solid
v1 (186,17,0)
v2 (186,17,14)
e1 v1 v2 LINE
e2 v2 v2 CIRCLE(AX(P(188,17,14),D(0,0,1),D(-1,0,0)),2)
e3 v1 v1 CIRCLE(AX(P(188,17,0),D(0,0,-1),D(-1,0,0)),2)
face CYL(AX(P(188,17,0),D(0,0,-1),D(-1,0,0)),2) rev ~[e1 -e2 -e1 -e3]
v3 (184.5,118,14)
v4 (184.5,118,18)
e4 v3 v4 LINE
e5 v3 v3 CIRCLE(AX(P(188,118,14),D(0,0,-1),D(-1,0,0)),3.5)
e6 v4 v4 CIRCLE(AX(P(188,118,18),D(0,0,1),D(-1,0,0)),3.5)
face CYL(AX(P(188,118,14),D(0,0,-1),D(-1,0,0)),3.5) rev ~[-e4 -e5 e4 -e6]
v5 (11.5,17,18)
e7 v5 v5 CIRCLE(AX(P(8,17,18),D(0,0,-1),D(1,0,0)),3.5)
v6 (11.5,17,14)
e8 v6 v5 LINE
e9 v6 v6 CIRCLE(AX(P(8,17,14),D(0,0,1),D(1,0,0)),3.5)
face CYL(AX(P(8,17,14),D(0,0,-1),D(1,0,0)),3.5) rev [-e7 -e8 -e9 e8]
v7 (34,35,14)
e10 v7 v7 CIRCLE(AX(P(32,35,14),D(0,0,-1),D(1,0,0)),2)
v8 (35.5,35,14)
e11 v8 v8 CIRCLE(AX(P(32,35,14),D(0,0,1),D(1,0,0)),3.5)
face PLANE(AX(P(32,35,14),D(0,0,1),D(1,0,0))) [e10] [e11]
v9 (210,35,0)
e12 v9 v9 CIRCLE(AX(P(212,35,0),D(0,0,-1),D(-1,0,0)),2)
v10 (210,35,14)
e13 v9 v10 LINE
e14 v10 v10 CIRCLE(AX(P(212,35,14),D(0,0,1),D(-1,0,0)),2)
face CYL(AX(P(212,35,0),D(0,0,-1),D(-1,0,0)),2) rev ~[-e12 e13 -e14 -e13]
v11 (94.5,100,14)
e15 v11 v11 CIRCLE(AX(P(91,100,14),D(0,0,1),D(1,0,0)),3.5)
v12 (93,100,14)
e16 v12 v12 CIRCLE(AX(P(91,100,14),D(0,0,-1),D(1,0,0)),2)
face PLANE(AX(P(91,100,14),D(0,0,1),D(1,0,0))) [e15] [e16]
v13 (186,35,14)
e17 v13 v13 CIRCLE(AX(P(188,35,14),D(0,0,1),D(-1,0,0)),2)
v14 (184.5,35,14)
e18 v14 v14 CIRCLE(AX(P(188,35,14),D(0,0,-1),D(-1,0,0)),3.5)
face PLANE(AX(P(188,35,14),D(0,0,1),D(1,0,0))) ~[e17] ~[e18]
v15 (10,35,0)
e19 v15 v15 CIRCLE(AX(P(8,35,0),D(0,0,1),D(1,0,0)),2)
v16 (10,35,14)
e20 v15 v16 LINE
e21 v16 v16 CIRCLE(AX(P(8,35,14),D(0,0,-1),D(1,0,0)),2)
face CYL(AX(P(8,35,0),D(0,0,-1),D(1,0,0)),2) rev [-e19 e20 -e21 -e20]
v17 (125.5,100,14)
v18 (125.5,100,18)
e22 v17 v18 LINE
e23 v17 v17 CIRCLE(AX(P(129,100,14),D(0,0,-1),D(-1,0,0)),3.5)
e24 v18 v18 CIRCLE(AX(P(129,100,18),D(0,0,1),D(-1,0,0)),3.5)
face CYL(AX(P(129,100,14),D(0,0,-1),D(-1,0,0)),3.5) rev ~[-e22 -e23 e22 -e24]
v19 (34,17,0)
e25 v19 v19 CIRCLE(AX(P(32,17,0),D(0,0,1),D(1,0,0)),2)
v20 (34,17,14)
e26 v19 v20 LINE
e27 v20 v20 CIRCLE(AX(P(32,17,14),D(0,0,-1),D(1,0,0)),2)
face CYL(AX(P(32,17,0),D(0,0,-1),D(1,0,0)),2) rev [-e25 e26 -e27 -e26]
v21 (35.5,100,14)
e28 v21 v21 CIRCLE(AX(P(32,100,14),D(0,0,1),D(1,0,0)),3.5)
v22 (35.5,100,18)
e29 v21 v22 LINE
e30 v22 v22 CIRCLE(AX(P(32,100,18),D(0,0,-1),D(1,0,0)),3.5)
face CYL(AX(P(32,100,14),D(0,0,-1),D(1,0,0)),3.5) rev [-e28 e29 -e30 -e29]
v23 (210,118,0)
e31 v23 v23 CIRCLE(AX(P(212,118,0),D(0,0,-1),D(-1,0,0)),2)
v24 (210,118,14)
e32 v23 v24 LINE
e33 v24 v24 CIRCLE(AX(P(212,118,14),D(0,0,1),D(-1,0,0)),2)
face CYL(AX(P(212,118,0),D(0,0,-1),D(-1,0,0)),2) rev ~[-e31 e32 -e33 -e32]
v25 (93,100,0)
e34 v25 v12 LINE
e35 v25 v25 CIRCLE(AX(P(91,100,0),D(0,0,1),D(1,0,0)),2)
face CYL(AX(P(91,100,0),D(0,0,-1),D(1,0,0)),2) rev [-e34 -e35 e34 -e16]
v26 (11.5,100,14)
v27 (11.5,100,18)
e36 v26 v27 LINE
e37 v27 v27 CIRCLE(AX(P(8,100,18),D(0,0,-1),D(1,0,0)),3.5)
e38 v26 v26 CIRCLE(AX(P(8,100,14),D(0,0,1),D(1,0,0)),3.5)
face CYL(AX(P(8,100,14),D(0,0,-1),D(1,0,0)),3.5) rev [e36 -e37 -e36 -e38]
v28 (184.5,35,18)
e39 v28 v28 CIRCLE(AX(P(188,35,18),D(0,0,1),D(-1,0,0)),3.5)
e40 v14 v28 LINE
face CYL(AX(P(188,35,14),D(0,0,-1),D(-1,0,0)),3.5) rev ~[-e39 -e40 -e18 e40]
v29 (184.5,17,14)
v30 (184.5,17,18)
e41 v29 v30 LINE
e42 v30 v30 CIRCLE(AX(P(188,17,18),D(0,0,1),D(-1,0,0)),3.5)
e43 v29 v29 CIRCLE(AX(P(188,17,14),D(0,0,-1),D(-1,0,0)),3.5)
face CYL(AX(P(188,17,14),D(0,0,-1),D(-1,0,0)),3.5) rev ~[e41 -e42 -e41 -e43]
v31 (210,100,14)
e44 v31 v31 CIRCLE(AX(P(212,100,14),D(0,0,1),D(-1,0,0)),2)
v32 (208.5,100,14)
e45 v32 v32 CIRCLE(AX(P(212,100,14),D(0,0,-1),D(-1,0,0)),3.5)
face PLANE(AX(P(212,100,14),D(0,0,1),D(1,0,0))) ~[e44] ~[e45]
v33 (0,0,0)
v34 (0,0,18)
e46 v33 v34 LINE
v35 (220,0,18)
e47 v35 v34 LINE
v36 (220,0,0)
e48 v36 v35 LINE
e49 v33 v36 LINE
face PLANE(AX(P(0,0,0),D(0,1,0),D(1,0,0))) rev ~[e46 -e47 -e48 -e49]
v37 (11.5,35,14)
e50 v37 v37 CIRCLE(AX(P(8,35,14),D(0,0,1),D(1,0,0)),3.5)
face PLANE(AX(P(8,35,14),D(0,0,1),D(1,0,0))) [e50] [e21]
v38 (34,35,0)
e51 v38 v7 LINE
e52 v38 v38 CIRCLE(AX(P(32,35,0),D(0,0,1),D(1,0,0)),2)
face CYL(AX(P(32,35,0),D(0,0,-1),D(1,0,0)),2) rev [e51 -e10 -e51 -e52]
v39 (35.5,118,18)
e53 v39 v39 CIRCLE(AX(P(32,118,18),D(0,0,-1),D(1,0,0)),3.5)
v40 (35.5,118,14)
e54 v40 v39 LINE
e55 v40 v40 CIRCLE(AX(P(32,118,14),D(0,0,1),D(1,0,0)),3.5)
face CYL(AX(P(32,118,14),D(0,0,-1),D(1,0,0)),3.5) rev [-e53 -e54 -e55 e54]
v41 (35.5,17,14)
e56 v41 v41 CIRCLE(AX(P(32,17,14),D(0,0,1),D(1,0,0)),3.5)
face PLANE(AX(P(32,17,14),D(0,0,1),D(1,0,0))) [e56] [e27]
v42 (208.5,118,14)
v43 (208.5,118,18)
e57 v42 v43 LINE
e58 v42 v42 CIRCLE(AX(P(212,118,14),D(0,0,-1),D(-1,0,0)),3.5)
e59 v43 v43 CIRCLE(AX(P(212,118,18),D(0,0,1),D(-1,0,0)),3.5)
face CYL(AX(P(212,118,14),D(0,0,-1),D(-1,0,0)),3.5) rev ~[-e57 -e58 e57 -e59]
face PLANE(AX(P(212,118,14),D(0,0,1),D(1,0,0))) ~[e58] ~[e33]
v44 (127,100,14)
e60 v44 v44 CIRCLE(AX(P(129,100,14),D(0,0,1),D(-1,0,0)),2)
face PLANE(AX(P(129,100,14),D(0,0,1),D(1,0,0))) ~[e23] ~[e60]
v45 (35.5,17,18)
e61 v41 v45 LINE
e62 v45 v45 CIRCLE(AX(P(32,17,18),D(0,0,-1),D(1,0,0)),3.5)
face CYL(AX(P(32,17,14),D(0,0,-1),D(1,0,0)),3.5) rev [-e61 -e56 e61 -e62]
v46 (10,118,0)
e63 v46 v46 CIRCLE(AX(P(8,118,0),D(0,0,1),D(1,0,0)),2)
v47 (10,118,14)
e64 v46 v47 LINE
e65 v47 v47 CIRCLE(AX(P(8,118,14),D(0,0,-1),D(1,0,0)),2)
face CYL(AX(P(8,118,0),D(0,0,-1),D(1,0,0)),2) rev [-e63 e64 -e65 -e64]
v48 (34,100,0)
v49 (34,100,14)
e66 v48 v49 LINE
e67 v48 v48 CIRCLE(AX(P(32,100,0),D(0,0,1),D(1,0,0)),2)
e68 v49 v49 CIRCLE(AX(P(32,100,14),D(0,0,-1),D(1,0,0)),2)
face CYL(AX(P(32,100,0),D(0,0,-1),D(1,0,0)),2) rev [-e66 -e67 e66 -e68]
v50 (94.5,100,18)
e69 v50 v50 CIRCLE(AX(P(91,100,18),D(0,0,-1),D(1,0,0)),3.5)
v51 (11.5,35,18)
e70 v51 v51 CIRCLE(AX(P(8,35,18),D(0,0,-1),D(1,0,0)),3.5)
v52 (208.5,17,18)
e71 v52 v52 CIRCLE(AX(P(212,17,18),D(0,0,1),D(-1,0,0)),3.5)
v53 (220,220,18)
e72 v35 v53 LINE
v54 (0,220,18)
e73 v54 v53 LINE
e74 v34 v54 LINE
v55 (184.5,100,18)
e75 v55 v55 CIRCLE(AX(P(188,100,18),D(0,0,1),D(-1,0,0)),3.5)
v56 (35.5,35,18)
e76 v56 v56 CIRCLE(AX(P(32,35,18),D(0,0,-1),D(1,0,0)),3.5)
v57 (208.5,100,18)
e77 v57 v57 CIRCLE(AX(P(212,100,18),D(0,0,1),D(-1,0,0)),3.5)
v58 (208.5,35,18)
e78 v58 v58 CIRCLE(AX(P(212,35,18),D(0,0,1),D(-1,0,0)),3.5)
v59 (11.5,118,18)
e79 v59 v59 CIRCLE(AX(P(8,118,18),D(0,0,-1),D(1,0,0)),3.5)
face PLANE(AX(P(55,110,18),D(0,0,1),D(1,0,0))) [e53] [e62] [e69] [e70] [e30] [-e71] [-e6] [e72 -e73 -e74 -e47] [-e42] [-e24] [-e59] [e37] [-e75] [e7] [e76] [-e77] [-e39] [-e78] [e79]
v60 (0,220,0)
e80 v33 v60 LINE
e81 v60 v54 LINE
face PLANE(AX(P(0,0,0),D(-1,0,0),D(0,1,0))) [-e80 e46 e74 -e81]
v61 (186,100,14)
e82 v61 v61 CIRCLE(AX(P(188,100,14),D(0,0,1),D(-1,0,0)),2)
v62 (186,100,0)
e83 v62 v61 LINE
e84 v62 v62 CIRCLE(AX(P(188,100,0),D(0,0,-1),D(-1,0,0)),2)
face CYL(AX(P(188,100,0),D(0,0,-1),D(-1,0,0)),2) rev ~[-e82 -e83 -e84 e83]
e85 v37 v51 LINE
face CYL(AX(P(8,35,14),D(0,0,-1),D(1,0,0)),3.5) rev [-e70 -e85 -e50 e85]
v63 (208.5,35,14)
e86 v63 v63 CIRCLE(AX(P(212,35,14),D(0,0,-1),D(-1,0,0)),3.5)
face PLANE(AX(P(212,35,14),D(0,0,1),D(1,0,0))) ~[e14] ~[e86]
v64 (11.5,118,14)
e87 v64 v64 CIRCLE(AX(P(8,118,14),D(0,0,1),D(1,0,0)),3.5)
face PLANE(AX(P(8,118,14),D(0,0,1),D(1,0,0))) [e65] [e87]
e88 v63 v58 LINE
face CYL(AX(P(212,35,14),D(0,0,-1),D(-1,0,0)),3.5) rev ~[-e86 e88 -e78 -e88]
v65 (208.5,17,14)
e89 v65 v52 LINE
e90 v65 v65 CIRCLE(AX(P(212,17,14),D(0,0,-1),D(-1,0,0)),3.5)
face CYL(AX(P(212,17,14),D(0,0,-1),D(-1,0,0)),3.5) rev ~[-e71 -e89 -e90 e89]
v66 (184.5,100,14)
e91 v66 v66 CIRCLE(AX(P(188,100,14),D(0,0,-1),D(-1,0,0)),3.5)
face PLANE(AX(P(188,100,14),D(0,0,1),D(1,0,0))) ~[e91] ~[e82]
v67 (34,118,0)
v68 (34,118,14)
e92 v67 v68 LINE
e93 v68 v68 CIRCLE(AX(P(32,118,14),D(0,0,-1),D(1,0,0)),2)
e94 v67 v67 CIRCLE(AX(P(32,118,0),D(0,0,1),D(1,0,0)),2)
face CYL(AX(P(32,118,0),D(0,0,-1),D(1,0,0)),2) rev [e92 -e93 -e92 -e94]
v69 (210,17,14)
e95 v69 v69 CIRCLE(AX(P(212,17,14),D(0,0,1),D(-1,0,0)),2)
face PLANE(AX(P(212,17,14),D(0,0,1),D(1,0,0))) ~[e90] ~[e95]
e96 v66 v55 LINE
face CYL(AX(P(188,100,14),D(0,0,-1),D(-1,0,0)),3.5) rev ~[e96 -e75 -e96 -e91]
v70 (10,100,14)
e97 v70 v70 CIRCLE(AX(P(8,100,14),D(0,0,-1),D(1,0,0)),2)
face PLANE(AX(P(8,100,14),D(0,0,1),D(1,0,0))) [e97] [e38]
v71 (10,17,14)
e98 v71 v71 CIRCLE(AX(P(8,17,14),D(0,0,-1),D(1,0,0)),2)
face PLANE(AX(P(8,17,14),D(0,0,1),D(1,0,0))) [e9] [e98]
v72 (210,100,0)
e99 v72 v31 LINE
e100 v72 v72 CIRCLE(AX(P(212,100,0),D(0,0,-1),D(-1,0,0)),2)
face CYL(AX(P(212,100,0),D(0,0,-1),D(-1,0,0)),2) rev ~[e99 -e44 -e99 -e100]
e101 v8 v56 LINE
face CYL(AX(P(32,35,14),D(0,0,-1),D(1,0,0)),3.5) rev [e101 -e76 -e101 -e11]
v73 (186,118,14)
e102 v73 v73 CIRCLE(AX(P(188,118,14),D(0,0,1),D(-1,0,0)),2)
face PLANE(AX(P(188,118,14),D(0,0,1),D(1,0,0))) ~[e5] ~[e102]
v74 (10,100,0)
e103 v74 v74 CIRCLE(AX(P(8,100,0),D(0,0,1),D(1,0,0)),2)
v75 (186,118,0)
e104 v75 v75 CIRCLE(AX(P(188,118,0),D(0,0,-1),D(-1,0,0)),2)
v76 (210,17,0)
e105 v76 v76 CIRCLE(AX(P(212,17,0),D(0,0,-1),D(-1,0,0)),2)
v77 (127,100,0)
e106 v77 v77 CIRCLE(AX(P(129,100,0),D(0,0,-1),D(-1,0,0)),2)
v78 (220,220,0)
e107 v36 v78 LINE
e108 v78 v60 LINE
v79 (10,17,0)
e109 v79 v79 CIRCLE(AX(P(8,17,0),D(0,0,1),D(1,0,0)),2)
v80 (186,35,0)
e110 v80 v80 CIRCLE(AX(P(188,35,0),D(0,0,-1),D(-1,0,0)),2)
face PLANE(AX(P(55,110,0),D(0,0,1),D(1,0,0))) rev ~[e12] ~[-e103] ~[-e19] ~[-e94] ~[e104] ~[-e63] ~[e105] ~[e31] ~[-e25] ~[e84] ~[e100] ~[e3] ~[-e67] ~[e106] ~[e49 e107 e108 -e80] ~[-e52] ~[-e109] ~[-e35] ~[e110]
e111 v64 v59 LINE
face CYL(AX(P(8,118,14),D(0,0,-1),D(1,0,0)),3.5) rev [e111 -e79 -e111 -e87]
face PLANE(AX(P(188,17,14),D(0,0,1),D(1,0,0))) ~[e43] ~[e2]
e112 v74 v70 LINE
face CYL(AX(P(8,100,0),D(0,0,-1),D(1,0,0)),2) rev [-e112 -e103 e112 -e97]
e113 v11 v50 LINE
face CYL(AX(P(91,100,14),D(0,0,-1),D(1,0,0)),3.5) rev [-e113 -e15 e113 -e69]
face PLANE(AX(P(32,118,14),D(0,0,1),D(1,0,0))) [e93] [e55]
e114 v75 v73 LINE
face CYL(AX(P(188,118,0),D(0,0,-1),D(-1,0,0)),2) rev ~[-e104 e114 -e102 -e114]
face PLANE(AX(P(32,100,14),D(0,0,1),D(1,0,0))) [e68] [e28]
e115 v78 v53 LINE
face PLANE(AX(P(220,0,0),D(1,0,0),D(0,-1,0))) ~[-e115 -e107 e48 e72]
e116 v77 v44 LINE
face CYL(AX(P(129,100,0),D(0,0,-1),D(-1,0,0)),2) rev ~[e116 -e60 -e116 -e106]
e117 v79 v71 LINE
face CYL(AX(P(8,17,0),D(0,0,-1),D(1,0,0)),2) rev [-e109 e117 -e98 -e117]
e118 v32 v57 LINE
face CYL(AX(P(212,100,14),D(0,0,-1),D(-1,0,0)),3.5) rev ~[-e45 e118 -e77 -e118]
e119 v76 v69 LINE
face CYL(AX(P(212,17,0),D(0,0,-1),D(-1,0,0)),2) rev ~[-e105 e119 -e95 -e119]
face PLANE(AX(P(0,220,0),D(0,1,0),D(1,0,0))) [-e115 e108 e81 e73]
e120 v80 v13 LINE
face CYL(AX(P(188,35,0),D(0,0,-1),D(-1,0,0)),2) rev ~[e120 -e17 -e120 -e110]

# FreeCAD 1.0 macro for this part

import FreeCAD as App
import Part
import Sketcher

doc = App.newDocument("Part")
params = doc.addObject("Spreadsheet::Sheet", "Params")
for row, (alias, value) in enumerate([
    ("sketch1_diameter", "7 mm"),
    ("pad1_length", "8 mm"),
    ("sketch2_diameter", "4 mm"),
    ("pad2_length", "25 mm"),
    ("sketch3_diameter", "7 mm"),
    ("pad3_length", "8 mm"),
    ("sketch4_diameter", "4 mm"),
    ("pad4_length", "25 mm"),
    ("sketch5_diameter", "7 mm"),
    ("pad5_length", "8 mm"),
    ("sketch6_diameter", "4 mm"),
    ("pad6_length", "25 mm"),
    ("sketch7_diameter", "7 mm"),
    ("pad7_length", "8 mm"),
    ("sketch8_diameter", "4 mm"),
    ("pad8_length", "25 mm"),
    ("sketch9_diameter", "7 mm"),
    ("pad9_length", "8 mm"),
    ("sketch10_diameter", "4 mm"),
    ("pad10_length", "25 mm"),
    ("sketch11_diameter", "7 mm"),
    ("pad11_length", "8 mm"),
    ("sketch12_diameter", "4 mm"),
    ("pad12_length", "25 mm"),
    ("sketch13_diameter", "7 mm"),
    ("pad13_length", "8 mm"),
    ("sketch14_diameter", "4 mm"),
    ("pad14_length", "25 mm"),
    ("sketch15_diameter", "7 mm"),
    ("pad15_length", "8 mm"),
    ("sketch16_diameter", "4 mm"),
    ("pad16_length", "25 mm"),
    ("sketch17_diameter", "7 mm"),
    ("pad17_length", "8 mm"),
    ("sketch18_diameter", "4 mm"),
    ("pad18_length", "25 mm"),
    ("sketch19_width", "110 mm"),
    ("sketch19_height", "220 mm"),
    ("pad19_length", "18 mm"),
], start=1):
    params.set(f"A{row}", alias)
    params.set(f"B{row}", "=" + value)
    params.setAlias(f"B{row}", alias)

body = doc.addObject("PartDesign::Body", "Body")

# Sketch on XY plane
sketch1 = body.newObject("Sketcher::SketchObject", "Sketch")
sketch1.AttachmentSupport = (doc.getObject("XY_Plane"), [""])
sketch1.MapMode = "FlatFace"
sketch1.AttachmentOffset = App.Placement(App.Vector(0, 0, 14), App.Rotation())
sketch1.addGeometry(Part.Circle(App.Vector(8, 17, 0), App.Vector(0, 0, 1), 3.5), False)
sketch1.addConstraint(Sketcher.Constraint("Diameter", 0, 7.0))
sketch1.addConstraint(Sketcher.Constraint("DistanceX", -1, 1, 0, 3, 8.0))
sketch1.addConstraint(Sketcher.Constraint("DistanceY", -1, 1, 0, 3, 17.0))
sketch1.setExpression("Constraints[0]", "Params.sketch1_diameter")
pad1 = body.newObject("PartDesign::Pad", "Pad")
pad1.Profile = sketch1
pad1.setExpression("Length", "Params.pad1_length")
body2 = doc.addObject("PartDesign::Body", "Body001")

# Sketch on XY plane
sketch2 = body2.newObject("Sketcher::SketchObject", "Sketch001")
sketch2.AttachmentSupport = (doc.getObject("XY_Plane001"), [""])
sketch2.MapMode = "FlatFace"
sketch2.addGeometry(Part.Circle(App.Vector(8, 17, 0), App.Vector(0, 0, 1), 2), False)
sketch2.addConstraint(Sketcher.Constraint("Diameter", 0, 4.0))
sketch2.addConstraint(Sketcher.Constraint("DistanceX", -1, 1, 0, 3, 8.0))
sketch2.addConstraint(Sketcher.Constraint("DistanceY", -1, 1, 0, 3, 17.0))
sketch2.setExpression("Constraints[0]", "Params.sketch2_diameter")
pad2 = body2.newObject("PartDesign::Pad", "Pad001")
pad2.Profile = sketch2
pad2.setExpression("Length", "Params.pad2_length")
doc.recompute()

boolean = body2.newObject("PartDesign::Boolean", "Boolean")
boolean.Type = "Fuse"
boolean.addObjects([body])
body3 = doc.addObject("PartDesign::Body", "Body002")
doc.recompute()

body2.Placement = App.Placement(App.Vector(24, 0, 0), App.Rotation(App.Vector(0, 0, 1), 0))
boolean2 = body3.newObject("PartDesign::Boolean", "Boolean001")
boolean2.Type = "Fuse"
boolean2.addObjects([body2])
body4 = doc.addObject("PartDesign::Body", "Body003")

# Sketch on XY plane
sketch3 = body4.newObject("Sketcher::SketchObject", "Sketch002")
sketch3.AttachmentSupport = (doc.getObject("XY_Plane003"), [""])
sketch3.MapMode = "FlatFace"
sketch3.AttachmentOffset = App.Placement(App.Vector(0, 0, 14), App.Rotation())
sketch3.addGeometry(Part.Circle(App.Vector(8, 17, 0), App.Vector(0, 0, 1), 3.5), False)
sketch3.addConstraint(Sketcher.Constraint("Diameter", 0, 7.0))
sketch3.addConstraint(Sketcher.Constraint("DistanceX", -1, 1, 0, 3, 8.0))
sketch3.addConstraint(Sketcher.Constraint("DistanceY", -1, 1, 0, 3, 17.0))
sketch3.setExpression("Constraints[0]", "Params.sketch3_diameter")
pad3 = body4.newObject("PartDesign::Pad", "Pad002")
pad3.Profile = sketch3
pad3.setExpression("Length", "Params.pad3_length")
body5 = doc.addObject("PartDesign::Body", "Body004")
body5.AllowCompound = True

# Sketch on XY plane
sketch4 = body5.newObject("Sketcher::SketchObject", "Sketch003")
sketch4.AttachmentSupport = (doc.getObject("XY_Plane004"), [""])
sketch4.MapMode = "FlatFace"
sketch4.addGeometry(Part.Circle(App.Vector(8, 17, 0), App.Vector(0, 0, 1), 2), False)
sketch4.addConstraint(Sketcher.Constraint("Diameter", 0, 4.0))
sketch4.addConstraint(Sketcher.Constraint("DistanceX", -1, 1, 0, 3, 8.0))
sketch4.addConstraint(Sketcher.Constraint("DistanceY", -1, 1, 0, 3, 17.0))
sketch4.setExpression("Constraints[0]", "Params.sketch4_diameter")
pad4 = body5.newObject("PartDesign::Pad", "Pad003")
pad4.Profile = sketch4
pad4.setExpression("Length", "Params.pad4_length")
doc.recompute()

boolean3 = body5.newObject("PartDesign::Boolean", "Boolean002")
boolean3.Type = "Fuse"
boolean3.addObjects([body4])
doc.recompute()

boolean4 = body5.newObject("PartDesign::Boolean", "Boolean003")
boolean4.Type = "Fuse"
boolean4.addObjects([body3])
body6 = doc.addObject("PartDesign::Body", "Body005")

# Sketch on XY plane
sketch5 = body6.newObject("Sketcher::SketchObject", "Sketch004")
sketch5.AttachmentSupport = (doc.getObject("XY_Plane005"), [""])
sketch5.MapMode = "FlatFace"
sketch5.AttachmentOffset = App.Placement(App.Vector(0, 0, 14), App.Rotation())
sketch5.addGeometry(Part.Circle(App.Vector(8, 17, 0), App.Vector(0, 0, 1), 3.5), False)
sketch5.addConstraint(Sketcher.Constraint("Diameter", 0, 7.0))
sketch5.addConstraint(Sketcher.Constraint("DistanceX", -1, 1, 0, 3, 8.0))
sketch5.addConstraint(Sketcher.Constraint("DistanceY", -1, 1, 0, 3, 17.0))
sketch5.setExpression("Constraints[0]", "Params.sketch5_diameter")
pad5 = body6.newObject("PartDesign::Pad", "Pad004")
pad5.Profile = sketch5
pad5.setExpression("Length", "Params.pad5_length")
body7 = doc.addObject("PartDesign::Body", "Body006")

# Sketch on XY plane
sketch6 = body7.newObject("Sketcher::SketchObject", "Sketch005")
sketch6.AttachmentSupport = (doc.getObject("XY_Plane006"), [""])
sketch6.MapMode = "FlatFace"
sketch6.addGeometry(Part.Circle(App.Vector(8, 17, 0), App.Vector(0, 0, 1), 2), False)
sketch6.addConstraint(Sketcher.Constraint("Diameter", 0, 4.0))
sketch6.addConstraint(Sketcher.Constraint("DistanceX", -1, 1, 0, 3, 8.0))
sketch6.addConstraint(Sketcher.Constraint("DistanceY", -1, 1, 0, 3, 17.0))
sketch6.setExpression("Constraints[0]", "Params.sketch6_diameter")
pad6 = body7.newObject("PartDesign::Pad", "Pad005")
pad6.Profile = sketch6
pad6.setExpression("Length", "Params.pad6_length")
doc.recompute()

boolean5 = body7.newObject("PartDesign::Boolean", "Boolean004")
boolean5.Type = "Fuse"
boolean5.addObjects([body6])
body8 = doc.addObject("PartDesign::Body", "Body007")
doc.recompute()

body7.Placement = App.Placement(App.Vector(24, 0, 0), App.Rotation(App.Vector(0, 0, 1), 0))
boolean6 = body8.newObject("PartDesign::Boolean", "Boolean005")
boolean6.Type = "Fuse"
boolean6.addObjects([body7])
body9 = doc.addObject("PartDesign::Body", "Body008")

# Sketch on XY plane
sketch7 = body9.newObject("Sketcher::SketchObject", "Sketch006")
sketch7.AttachmentSupport = (doc.getObject("XY_Plane008"), [""])
sketch7.MapMode = "FlatFace"
sketch7.AttachmentOffset = App.Placement(App.Vector(0, 0, 14), App.Rotation())
sketch7.addGeometry(Part.Circle(App.Vector(8, 17, 0), App.Vector(0, 0, 1), 3.5), False)
sketch7.addConstraint(Sketcher.Constraint("Diameter", 0, 7.0))
sketch7.addConstraint(Sketcher.Constraint("DistanceX", -1, 1, 0, 3, 8.0))
sketch7.addConstraint(Sketcher.Constraint("DistanceY", -1, 1, 0, 3, 17.0))
sketch7.setExpression("Constraints[0]", "Params.sketch7_diameter")
pad7 = body9.newObject("PartDesign::Pad", "Pad006")
pad7.Profile = sketch7
pad7.setExpression("Length", "Params.pad7_length")
body10 = doc.addObject("PartDesign::Body", "Body009")
body10.AllowCompound = True

# Sketch on XY plane
sketch8 = body10.newObject("Sketcher::SketchObject", "Sketch007")
sketch8.AttachmentSupport = (doc.getObject("XY_Plane009"), [""])
sketch8.MapMode = "FlatFace"
sketch8.addGeometry(Part.Circle(App.Vector(8, 17, 0), App.Vector(0, 0, 1), 2), False)
sketch8.addConstraint(Sketcher.Constraint("Diameter", 0, 4.0))
sketch8.addConstraint(Sketcher.Constraint("DistanceX", -1, 1, 0, 3, 8.0))
sketch8.addConstraint(Sketcher.Constraint("DistanceY", -1, 1, 0, 3, 17.0))
sketch8.setExpression("Constraints[0]", "Params.sketch8_diameter")
pad8 = body10.newObject("PartDesign::Pad", "Pad007")
pad8.Profile = sketch8
pad8.setExpression("Length", "Params.pad8_length")
doc.recompute()

boolean7 = body10.newObject("PartDesign::Boolean", "Boolean006")
boolean7.Type = "Fuse"
boolean7.addObjects([body9])
doc.recompute()

boolean8 = body10.newObject("PartDesign::Boolean", "Boolean007")
boolean8.Type = "Fuse"
boolean8.addObjects([body8])
body11 = doc.addObject("PartDesign::Body", "Body010")
body11.AllowCompound = True
doc.recompute()

body10.Placement = App.Placement(App.Vector(0, 18, 0), App.Rotation(App.Vector(0, 0, 1), 0))
boolean9 = body11.newObject("PartDesign::Boolean", "Boolean008")
boolean9.Type = "Fuse"
boolean9.addObjects([body10])
doc.recompute()

boolean10 = body11.newObject("PartDesign::Boolean", "Boolean009")
boolean10.Type = "Fuse"
boolean10.addObjects([body5])
body12 = doc.addObject("PartDesign::Body", "Body011")

# Sketch on XY plane
sketch9 = body12.newObject("Sketcher::SketchObject", "Sketch008")
sketch9.AttachmentSupport = (doc.getObject("XY_Plane011"), [""])
sketch9.MapMode = "FlatFace"
sketch9.AttachmentOffset = App.Placement(App.Vector(0, 0, 14), App.Rotation())
sketch9.addGeometry(Part.Circle(App.Vector(8, 17, 0), App.Vector(0, 0, 1), 3.5), False)
sketch9.addConstraint(Sketcher.Constraint("Diameter", 0, 7.0))
sketch9.addConstraint(Sketcher.Constraint("DistanceX", -1, 1, 0, 3, 8.0))
sketch9.addConstraint(Sketcher.Constraint("DistanceY", -1, 1, 0, 3, 17.0))
sketch9.setExpression("Constraints[0]", "Params.sketch9_diameter")
pad9 = body12.newObject("PartDesign::Pad", "Pad008")
pad9.Profile = sketch9
pad9.setExpression("Length", "Params.pad9_length")
body13 = doc.addObject("PartDesign::Body", "Body012")

# Sketch on XY plane
sketch10 = body13.newObject("Sketcher::SketchObject", "Sketch009")
sketch10.AttachmentSupport = (doc.getObject("XY_Plane012"), [""])
sketch10.MapMode = "FlatFace"
sketch10.addGeometry(Part.Circle(App.Vector(8, 17, 0), App.Vector(0, 0, 1), 2), False)
sketch10.addConstraint(Sketcher.Constraint("Diameter", 0, 4.0))
sketch10.addConstraint(Sketcher.Constraint("DistanceX", -1, 1, 0, 3, 8.0))
sketch10.addConstraint(Sketcher.Constraint("DistanceY", -1, 1, 0, 3, 17.0))
sketch10.setExpression("Constraints[0]", "Params.sketch10_diameter")
pad10 = body13.newObject("PartDesign::Pad", "Pad009")
pad10.Profile = sketch10
pad10.setExpression("Length", "Params.pad10_length")
doc.recompute()

boolean11 = body13.newObject("PartDesign::Boolean", "Boolean010")
boolean11.Type = "Fuse"
boolean11.addObjects([body12])
body14 = doc.addObject("PartDesign::Body", "Body013")
doc.recompute()

body13.Placement = App.Placement(App.Vector(83, 83, 0), App.Rotation(App.Vector(0, 0, 1), 0))
boolean12 = body14.newObject("PartDesign::Boolean", "Boolean011")
boolean12.Type = "Fuse"
boolean12.addObjects([body13])
body15 = doc.addObject("PartDesign::Body", "Body014")

# Sketch on XY plane
sketch11 = body15.newObject("Sketcher::SketchObject", "Sketch010")
sketch11.AttachmentSupport = (doc.getObject("XY_Plane014"), [""])
sketch11.MapMode = "FlatFace"
sketch11.AttachmentOffset = App.Placement(App.Vector(0, 0, 14), App.Rotation())
sketch11.addGeometry(Part.Circle(App.Vector(8, 17, 0), App.Vector(0, 0, 1), 3.5), False)
sketch11.addConstraint(Sketcher.Constraint("Diameter", 0, 7.0))
sketch11.addConstraint(Sketcher.Constraint("DistanceX", -1, 1, 0, 3, 8.0))
sketch11.addConstraint(Sketcher.Constraint("DistanceY", -1, 1, 0, 3, 17.0))
sketch11.setExpression("Constraints[0]", "Params.sketch11_diameter")
pad11 = body15.newObject("PartDesign::Pad", "Pad010")
pad11.Profile = sketch11
pad11.setExpression("Length", "Params.pad11_length")
body16 = doc.addObject("PartDesign::Body", "Body015")

# Sketch on XY plane
sketch12 = body16.newObject("Sketcher::SketchObject", "Sketch011")
sketch12.AttachmentSupport = (doc.getObject("XY_Plane015"), [""])
sketch12.MapMode = "FlatFace"
sketch12.addGeometry(Part.Circle(App.Vector(8, 17, 0), App.Vector(0, 0, 1), 2), False)
sketch12.addConstraint(Sketcher.Constraint("Diameter", 0, 4.0))
sketch12.addConstraint(Sketcher.Constraint("DistanceX", -1, 1, 0, 3, 8.0))
sketch12.addConstraint(Sketcher.Constraint("DistanceY", -1, 1, 0, 3, 17.0))
sketch12.setExpression("Constraints[0]", "Params.sketch12_diameter")
pad12 = body16.newObject("PartDesign::Pad", "Pad011")
pad12.Profile = sketch12
pad12.setExpression("Length", "Params.pad12_length")
doc.recompute()

boolean13 = body16.newObject("PartDesign::Boolean", "Boolean012")
boolean13.Type = "Fuse"
boolean13.addObjects([body15])
body17 = doc.addObject("PartDesign::Body", "Body016")
doc.recompute()

body16.Placement = App.Placement(App.Vector(24, 0, 0), App.Rotation(App.Vector(0, 0, 1), 0))
boolean14 = body17.newObject("PartDesign::Boolean", "Boolean013")
boolean14.Type = "Fuse"
boolean14.addObjects([body16])
body18 = doc.addObject("PartDesign::Body", "Body017")

# Sketch on XY plane
sketch13 = body18.newObject("Sketcher::SketchObject", "Sketch012")
sketch13.AttachmentSupport = (doc.getObject("XY_Plane017"), [""])
sketch13.MapMode = "FlatFace"
sketch13.AttachmentOffset = App.Placement(App.Vector(0, 0, 14), App.Rotation())
sketch13.addGeometry(Part.Circle(App.Vector(8, 17, 0), App.Vector(0, 0, 1), 3.5), False)
sketch13.addConstraint(Sketcher.Constraint("Diameter", 0, 7.0))
sketch13.addConstraint(Sketcher.Constraint("DistanceX", -1, 1, 0, 3, 8.0))
sketch13.addConstraint(Sketcher.Constraint("DistanceY", -1, 1, 0, 3, 17.0))
sketch13.setExpression("Constraints[0]", "Params.sketch13_diameter")
pad13 = body18.newObject("PartDesign::Pad", "Pad012")
pad13.Profile = sketch13
pad13.setExpression("Length", "Params.pad13_length")
body19 = doc.addObject("PartDesign::Body", "Body018")
body19.AllowCompound = True

# Sketch on XY plane
sketch14 = body19.newObject("Sketcher::SketchObject", "Sketch013")
sketch14.AttachmentSupport = (doc.getObject("XY_Plane018"), [""])
sketch14.MapMode = "FlatFace"
sketch14.addGeometry(Part.Circle(App.Vector(8, 17, 0), App.Vector(0, 0, 1), 2), False)
sketch14.addConstraint(Sketcher.Constraint("Diameter", 0, 4.0))
sketch14.addConstraint(Sketcher.Constraint("DistanceX", -1, 1, 0, 3, 8.0))
sketch14.addConstraint(Sketcher.Constraint("DistanceY", -1, 1, 0, 3, 17.0))
sketch14.setExpression("Constraints[0]", "Params.sketch14_diameter")
pad14 = body19.newObject("PartDesign::Pad", "Pad013")
pad14.Profile = sketch14
pad14.setExpression("Length", "Params.pad14_length")
doc.recompute()

boolean15 = body19.newObject("PartDesign::Boolean", "Boolean014")
boolean15.Type = "Fuse"
boolean15.addObjects([body18])
doc.recompute()

boolean16 = body19.newObject("PartDesign::Boolean", "Boolean015")
boolean16.Type = "Fuse"
boolean16.addObjects([body17])
body20 = doc.addObject("PartDesign::Body", "Body019")

# Sketch on XY plane
sketch15 = body20.newObject("Sketcher::SketchObject", "Sketch014")
sketch15.AttachmentSupport = (doc.getObject("XY_Plane019"), [""])
sketch15.MapMode = "FlatFace"
sketch15.AttachmentOffset = App.Placement(App.Vector(0, 0, 14), App.Rotation())
sketch15.addGeometry(Part.Circle(App.Vector(8, 17, 0), App.Vector(0, 0, 1), 3.5), False)
sketch15.addConstraint(Sketcher.Constraint("Diameter", 0, 7.0))
sketch15.addConstraint(Sketcher.Constraint("DistanceX", -1, 1, 0, 3, 8.0))
sketch15.addConstraint(Sketcher.Constraint("DistanceY", -1, 1, 0, 3, 17.0))
sketch15.setExpression("Constraints[0]", "Params.sketch15_diameter")
pad15 = body20.newObject("PartDesign::Pad", "Pad014")
pad15.Profile = sketch15
pad15.setExpression("Length", "Params.pad15_length")
body21 = doc.addObject("PartDesign::Body", "Body020")

# Sketch on XY plane
sketch16 = body21.newObject("Sketcher::SketchObject", "Sketch015")
sketch16.AttachmentSupport = (doc.getObject("XY_Plane020"), [""])
sketch16.MapMode = "FlatFace"
sketch16.addGeometry(Part.Circle(App.Vector(8, 17, 0), App.Vector(0, 0, 1), 2), False)
sketch16.addConstraint(Sketcher.Constraint("Diameter", 0, 4.0))
sketch16.addConstraint(Sketcher.Constraint("DistanceX", -1, 1, 0, 3, 8.0))
sketch16.addConstraint(Sketcher.Constraint("DistanceY", -1, 1, 0, 3, 17.0))
sketch16.setExpression("Constraints[0]", "Params.sketch16_diameter")
pad16 = body21.newObject("PartDesign::Pad", "Pad015")
pad16.Profile = sketch16
pad16.setExpression("Length", "Params.pad16_length")
doc.recompute()

boolean17 = body21.newObject("PartDesign::Boolean", "Boolean016")
boolean17.Type = "Fuse"
boolean17.addObjects([body20])
body22 = doc.addObject("PartDesign::Body", "Body021")
doc.recompute()

body21.Placement = App.Placement(App.Vector(24, 0, 0), App.Rotation(App.Vector(0, 0, 1), 0))
boolean18 = body22.newObject("PartDesign::Boolean", "Boolean017")
boolean18.Type = "Fuse"
boolean18.addObjects([body21])
body23 = doc.addObject("PartDesign::Body", "Body022")

# Sketch on XY plane
sketch17 = body23.newObject("Sketcher::SketchObject", "Sketch016")
sketch17.AttachmentSupport = (doc.getObject("XY_Plane022"), [""])
sketch17.MapMode = "FlatFace"
sketch17.AttachmentOffset = App.Placement(App.Vector(0, 0, 14), App.Rotation())
sketch17.addGeometry(Part.Circle(App.Vector(8, 17, 0), App.Vector(0, 0, 1), 3.5), False)
sketch17.addConstraint(Sketcher.Constraint("Diameter", 0, 7.0))
sketch17.addConstraint(Sketcher.Constraint("DistanceX", -1, 1, 0, 3, 8.0))
sketch17.addConstraint(Sketcher.Constraint("DistanceY", -1, 1, 0, 3, 17.0))
sketch17.setExpression("Constraints[0]", "Params.sketch17_diameter")
pad17 = body23.newObject("PartDesign::Pad", "Pad016")
pad17.Profile = sketch17
pad17.setExpression("Length", "Params.pad17_length")
body24 = doc.addObject("PartDesign::Body", "Body023")
body24.AllowCompound = True

# Sketch on XY plane
sketch18 = body24.newObject("Sketcher::SketchObject", "Sketch017")
sketch18.AttachmentSupport = (doc.getObject("XY_Plane023"), [""])
sketch18.MapMode = "FlatFace"
sketch18.addGeometry(Part.Circle(App.Vector(8, 17, 0), App.Vector(0, 0, 1), 2), False)
sketch18.addConstraint(Sketcher.Constraint("Diameter", 0, 4.0))
sketch18.addConstraint(Sketcher.Constraint("DistanceX", -1, 1, 0, 3, 8.0))
sketch18.addConstraint(Sketcher.Constraint("DistanceY", -1, 1, 0, 3, 17.0))
sketch18.setExpression("Constraints[0]", "Params.sketch18_diameter")
pad18 = body24.newObject("PartDesign::Pad", "Pad017")
pad18.Profile = sketch18
pad18.setExpression("Length", "Params.pad18_length")
doc.recompute()

boolean19 = body24.newObject("PartDesign::Boolean", "Boolean018")
boolean19.Type = "Fuse"
boolean19.addObjects([body23])
doc.recompute()

boolean20 = body24.newObject("PartDesign::Boolean", "Boolean019")
boolean20.Type = "Fuse"
boolean20.addObjects([body22])
body25 = doc.addObject("PartDesign::Body", "Body024")
body25.AllowCompound = True
doc.recompute()

body24.Placement = App.Placement(App.Vector(0, 18, 0), App.Rotation(App.Vector(0, 0, 1), 0))
boolean21 = body25.newObject("PartDesign::Boolean", "Boolean020")
boolean21.Type = "Fuse"
boolean21.addObjects([body24])
doc.recompute()

boolean22 = body25.newObject("PartDesign::Boolean", "Boolean021")
boolean22.Type = "Fuse"
boolean22.addObjects([body19])
body26 = doc.addObject("PartDesign::Body", "Body025")
body26.AllowCompound = True
doc.recompute()

body25.Placement = App.Placement(App.Vector(0, 83, 0), App.Rotation(App.Vector(0, 0, 1), 0))
boolean23 = body26.newObject("PartDesign::Boolean", "Boolean022")
boolean23.Type = "Fuse"
boolean23.addObjects([body25])
doc.recompute()

boolean24 = body26.newObject("PartDesign::Boolean", "Boolean023")
boolean24.Type = "Fuse"
boolean24.addObjects([body11])
doc.recompute()

boolean25 = body26.newObject("PartDesign::Boolean", "Boolean024")
boolean25.Type = "Fuse"
boolean25.addObjects([body14])
body27 = doc.addObject("PartDesign::Body", "Body026")

# Sketch on XY plane
sketch19 = body27.newObject("Sketcher::SketchObject", "Sketch018")
sketch19.AttachmentSupport = (doc.getObject("XY_Plane026"), [""])
sketch19.MapMode = "FlatFace"
sketch19.addGeometry(Part.LineSegment(App.Vector(0, 220, 0), App.Vector(0, 0, 0)), False)
sketch19.addGeometry(Part.LineSegment(App.Vector(0, 0, 0), App.Vector(110, 0, 0)), False)
sketch19.addGeometry(Part.LineSegment(App.Vector(110, 0, 0), App.Vector(110, 220, 0)), False)
sketch19.addGeometry(Part.LineSegment(App.Vector(110, 220, 0), App.Vector(0, 220, 0)), False)
sketch19.addConstraint(Sketcher.Constraint("Coincident", 0, 2, 1, 1))
sketch19.addConstraint(Sketcher.Constraint("Coincident", 1, 2, 2, 1))
sketch19.addConstraint(Sketcher.Constraint("Coincident", 2, 2, 3, 1))
sketch19.addConstraint(Sketcher.Constraint("Coincident", 3, 2, 0, 1))
sketch19.addConstraint(Sketcher.Constraint("Vertical", 0))
sketch19.addConstraint(Sketcher.Constraint("Horizontal", 1))
sketch19.addConstraint(Sketcher.Constraint("Vertical", 2))
sketch19.addConstraint(Sketcher.Constraint("Horizontal", 3))
sketch19.addConstraint(Sketcher.Constraint("Coincident", 0, 2, -1, 1))
sketch19.addConstraint(Sketcher.Constraint("DistanceX", 1, 1, 1, 2, 110.0))
sketch19.addConstraint(Sketcher.Constraint("DistanceY", 0, 2, 0, 1, 220.0))
sketch19.setExpression("Constraints[9]", "Params.sketch19_width")
sketch19.setExpression("Constraints[10]", "Params.sketch19_height")
pad19 = body27.newObject("PartDesign::Pad", "Pad018")
pad19.Profile = sketch19
pad19.setExpression("Length", "Params.pad19_length")
doc.recompute()

boolean26 = body27.newObject("PartDesign::Boolean", "Boolean025")
boolean26.Type = "Cut"
boolean26.addObjects([body26])
body28 = doc.addObject("PartDesign::Body", "Body027")
doc.recompute()

mirroring = doc.addObject("Part::Mirroring", "Mirroring")
mirroring.Source = body27
mirroring.Base = App.Vector(110, 0, 0)
mirroring.Normal = App.Vector(1, 0, 0)
body28.BaseFeature = mirroring
doc.recompute()

boolean27 = body28.newObject("PartDesign::Boolean", "Boolean026")
boolean27.Type = "Fuse"
boolean27.addObjects([body27])
mirroring.Visibility = False

doc.recompute()
